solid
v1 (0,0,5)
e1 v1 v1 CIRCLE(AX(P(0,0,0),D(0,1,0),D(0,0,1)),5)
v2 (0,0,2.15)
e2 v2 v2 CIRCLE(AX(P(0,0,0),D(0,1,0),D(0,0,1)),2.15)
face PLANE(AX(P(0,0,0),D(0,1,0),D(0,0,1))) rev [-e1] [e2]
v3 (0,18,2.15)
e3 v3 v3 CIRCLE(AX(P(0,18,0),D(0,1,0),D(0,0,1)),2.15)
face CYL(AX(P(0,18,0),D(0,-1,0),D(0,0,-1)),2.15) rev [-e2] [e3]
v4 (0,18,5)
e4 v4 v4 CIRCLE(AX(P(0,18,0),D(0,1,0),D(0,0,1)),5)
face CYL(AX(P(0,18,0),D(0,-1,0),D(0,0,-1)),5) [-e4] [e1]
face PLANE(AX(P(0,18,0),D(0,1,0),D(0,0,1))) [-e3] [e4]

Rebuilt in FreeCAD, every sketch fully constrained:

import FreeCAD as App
import Part
import Sketcher
from FreeCAD import Vector

doc = App.newDocument("Part")
params = doc.addObject("Spreadsheet::Sheet", "Params")
for row, (alias, value) in enumerate([
    ("sketch1_diameter", "10 mm"),
    ("sketch1_diameter2", "4.3 mm"),
    ("pad1_length", "18 mm"),
], start=1):
    params.set(f"A{row}", alias)
    params.set(f"B{row}", "=" + value)
    params.setAlias(f"B{row}", alias)

body = doc.addObject("PartDesign::Body", "Body")

# Sketch on XZ plane
sketch1 = doc.addObject("Sketcher::SketchObject", "Sketch")
body.addObject(sketch1)
sketch1.AttachmentSupport = (doc.XZ_Plane, [""])
sketch1.MapMode = "FlatFace"
sketch1.addGeometry(Part.Circle(Vector(0, 0, 0), Vector(0, 0, 1), 5), False)
sketch1.addGeometry(Part.Circle(Vector(0, 0, 0), Vector(0, 0, 1), 2.15), False)
sketch1.addConstraint(Sketcher.Constraint("Coincident", 0, 3, -1, 1))
sketch1.addConstraint(Sketcher.Constraint("Coincident", 1, 3, -1, 1))
sketch1.addConstraint(Sketcher.Constraint("Diameter", 0, 10.0))
sketch1.addConstraint(Sketcher.Constraint("Diameter", 1, 4.3))
sketch1.setExpression("Constraints[2]", "Params.sketch1_diameter")
sketch1.setExpression("Constraints[3]", "Params.sketch1_diameter2")
pad1 = doc.addObject("PartDesign::Pad", "Pad")
body.addObject(pad1)
pad1.Profile = sketch1
pad1.setExpression("Length", "Params.pad1_length")
pad1.Reversed = True

doc.recompute()
